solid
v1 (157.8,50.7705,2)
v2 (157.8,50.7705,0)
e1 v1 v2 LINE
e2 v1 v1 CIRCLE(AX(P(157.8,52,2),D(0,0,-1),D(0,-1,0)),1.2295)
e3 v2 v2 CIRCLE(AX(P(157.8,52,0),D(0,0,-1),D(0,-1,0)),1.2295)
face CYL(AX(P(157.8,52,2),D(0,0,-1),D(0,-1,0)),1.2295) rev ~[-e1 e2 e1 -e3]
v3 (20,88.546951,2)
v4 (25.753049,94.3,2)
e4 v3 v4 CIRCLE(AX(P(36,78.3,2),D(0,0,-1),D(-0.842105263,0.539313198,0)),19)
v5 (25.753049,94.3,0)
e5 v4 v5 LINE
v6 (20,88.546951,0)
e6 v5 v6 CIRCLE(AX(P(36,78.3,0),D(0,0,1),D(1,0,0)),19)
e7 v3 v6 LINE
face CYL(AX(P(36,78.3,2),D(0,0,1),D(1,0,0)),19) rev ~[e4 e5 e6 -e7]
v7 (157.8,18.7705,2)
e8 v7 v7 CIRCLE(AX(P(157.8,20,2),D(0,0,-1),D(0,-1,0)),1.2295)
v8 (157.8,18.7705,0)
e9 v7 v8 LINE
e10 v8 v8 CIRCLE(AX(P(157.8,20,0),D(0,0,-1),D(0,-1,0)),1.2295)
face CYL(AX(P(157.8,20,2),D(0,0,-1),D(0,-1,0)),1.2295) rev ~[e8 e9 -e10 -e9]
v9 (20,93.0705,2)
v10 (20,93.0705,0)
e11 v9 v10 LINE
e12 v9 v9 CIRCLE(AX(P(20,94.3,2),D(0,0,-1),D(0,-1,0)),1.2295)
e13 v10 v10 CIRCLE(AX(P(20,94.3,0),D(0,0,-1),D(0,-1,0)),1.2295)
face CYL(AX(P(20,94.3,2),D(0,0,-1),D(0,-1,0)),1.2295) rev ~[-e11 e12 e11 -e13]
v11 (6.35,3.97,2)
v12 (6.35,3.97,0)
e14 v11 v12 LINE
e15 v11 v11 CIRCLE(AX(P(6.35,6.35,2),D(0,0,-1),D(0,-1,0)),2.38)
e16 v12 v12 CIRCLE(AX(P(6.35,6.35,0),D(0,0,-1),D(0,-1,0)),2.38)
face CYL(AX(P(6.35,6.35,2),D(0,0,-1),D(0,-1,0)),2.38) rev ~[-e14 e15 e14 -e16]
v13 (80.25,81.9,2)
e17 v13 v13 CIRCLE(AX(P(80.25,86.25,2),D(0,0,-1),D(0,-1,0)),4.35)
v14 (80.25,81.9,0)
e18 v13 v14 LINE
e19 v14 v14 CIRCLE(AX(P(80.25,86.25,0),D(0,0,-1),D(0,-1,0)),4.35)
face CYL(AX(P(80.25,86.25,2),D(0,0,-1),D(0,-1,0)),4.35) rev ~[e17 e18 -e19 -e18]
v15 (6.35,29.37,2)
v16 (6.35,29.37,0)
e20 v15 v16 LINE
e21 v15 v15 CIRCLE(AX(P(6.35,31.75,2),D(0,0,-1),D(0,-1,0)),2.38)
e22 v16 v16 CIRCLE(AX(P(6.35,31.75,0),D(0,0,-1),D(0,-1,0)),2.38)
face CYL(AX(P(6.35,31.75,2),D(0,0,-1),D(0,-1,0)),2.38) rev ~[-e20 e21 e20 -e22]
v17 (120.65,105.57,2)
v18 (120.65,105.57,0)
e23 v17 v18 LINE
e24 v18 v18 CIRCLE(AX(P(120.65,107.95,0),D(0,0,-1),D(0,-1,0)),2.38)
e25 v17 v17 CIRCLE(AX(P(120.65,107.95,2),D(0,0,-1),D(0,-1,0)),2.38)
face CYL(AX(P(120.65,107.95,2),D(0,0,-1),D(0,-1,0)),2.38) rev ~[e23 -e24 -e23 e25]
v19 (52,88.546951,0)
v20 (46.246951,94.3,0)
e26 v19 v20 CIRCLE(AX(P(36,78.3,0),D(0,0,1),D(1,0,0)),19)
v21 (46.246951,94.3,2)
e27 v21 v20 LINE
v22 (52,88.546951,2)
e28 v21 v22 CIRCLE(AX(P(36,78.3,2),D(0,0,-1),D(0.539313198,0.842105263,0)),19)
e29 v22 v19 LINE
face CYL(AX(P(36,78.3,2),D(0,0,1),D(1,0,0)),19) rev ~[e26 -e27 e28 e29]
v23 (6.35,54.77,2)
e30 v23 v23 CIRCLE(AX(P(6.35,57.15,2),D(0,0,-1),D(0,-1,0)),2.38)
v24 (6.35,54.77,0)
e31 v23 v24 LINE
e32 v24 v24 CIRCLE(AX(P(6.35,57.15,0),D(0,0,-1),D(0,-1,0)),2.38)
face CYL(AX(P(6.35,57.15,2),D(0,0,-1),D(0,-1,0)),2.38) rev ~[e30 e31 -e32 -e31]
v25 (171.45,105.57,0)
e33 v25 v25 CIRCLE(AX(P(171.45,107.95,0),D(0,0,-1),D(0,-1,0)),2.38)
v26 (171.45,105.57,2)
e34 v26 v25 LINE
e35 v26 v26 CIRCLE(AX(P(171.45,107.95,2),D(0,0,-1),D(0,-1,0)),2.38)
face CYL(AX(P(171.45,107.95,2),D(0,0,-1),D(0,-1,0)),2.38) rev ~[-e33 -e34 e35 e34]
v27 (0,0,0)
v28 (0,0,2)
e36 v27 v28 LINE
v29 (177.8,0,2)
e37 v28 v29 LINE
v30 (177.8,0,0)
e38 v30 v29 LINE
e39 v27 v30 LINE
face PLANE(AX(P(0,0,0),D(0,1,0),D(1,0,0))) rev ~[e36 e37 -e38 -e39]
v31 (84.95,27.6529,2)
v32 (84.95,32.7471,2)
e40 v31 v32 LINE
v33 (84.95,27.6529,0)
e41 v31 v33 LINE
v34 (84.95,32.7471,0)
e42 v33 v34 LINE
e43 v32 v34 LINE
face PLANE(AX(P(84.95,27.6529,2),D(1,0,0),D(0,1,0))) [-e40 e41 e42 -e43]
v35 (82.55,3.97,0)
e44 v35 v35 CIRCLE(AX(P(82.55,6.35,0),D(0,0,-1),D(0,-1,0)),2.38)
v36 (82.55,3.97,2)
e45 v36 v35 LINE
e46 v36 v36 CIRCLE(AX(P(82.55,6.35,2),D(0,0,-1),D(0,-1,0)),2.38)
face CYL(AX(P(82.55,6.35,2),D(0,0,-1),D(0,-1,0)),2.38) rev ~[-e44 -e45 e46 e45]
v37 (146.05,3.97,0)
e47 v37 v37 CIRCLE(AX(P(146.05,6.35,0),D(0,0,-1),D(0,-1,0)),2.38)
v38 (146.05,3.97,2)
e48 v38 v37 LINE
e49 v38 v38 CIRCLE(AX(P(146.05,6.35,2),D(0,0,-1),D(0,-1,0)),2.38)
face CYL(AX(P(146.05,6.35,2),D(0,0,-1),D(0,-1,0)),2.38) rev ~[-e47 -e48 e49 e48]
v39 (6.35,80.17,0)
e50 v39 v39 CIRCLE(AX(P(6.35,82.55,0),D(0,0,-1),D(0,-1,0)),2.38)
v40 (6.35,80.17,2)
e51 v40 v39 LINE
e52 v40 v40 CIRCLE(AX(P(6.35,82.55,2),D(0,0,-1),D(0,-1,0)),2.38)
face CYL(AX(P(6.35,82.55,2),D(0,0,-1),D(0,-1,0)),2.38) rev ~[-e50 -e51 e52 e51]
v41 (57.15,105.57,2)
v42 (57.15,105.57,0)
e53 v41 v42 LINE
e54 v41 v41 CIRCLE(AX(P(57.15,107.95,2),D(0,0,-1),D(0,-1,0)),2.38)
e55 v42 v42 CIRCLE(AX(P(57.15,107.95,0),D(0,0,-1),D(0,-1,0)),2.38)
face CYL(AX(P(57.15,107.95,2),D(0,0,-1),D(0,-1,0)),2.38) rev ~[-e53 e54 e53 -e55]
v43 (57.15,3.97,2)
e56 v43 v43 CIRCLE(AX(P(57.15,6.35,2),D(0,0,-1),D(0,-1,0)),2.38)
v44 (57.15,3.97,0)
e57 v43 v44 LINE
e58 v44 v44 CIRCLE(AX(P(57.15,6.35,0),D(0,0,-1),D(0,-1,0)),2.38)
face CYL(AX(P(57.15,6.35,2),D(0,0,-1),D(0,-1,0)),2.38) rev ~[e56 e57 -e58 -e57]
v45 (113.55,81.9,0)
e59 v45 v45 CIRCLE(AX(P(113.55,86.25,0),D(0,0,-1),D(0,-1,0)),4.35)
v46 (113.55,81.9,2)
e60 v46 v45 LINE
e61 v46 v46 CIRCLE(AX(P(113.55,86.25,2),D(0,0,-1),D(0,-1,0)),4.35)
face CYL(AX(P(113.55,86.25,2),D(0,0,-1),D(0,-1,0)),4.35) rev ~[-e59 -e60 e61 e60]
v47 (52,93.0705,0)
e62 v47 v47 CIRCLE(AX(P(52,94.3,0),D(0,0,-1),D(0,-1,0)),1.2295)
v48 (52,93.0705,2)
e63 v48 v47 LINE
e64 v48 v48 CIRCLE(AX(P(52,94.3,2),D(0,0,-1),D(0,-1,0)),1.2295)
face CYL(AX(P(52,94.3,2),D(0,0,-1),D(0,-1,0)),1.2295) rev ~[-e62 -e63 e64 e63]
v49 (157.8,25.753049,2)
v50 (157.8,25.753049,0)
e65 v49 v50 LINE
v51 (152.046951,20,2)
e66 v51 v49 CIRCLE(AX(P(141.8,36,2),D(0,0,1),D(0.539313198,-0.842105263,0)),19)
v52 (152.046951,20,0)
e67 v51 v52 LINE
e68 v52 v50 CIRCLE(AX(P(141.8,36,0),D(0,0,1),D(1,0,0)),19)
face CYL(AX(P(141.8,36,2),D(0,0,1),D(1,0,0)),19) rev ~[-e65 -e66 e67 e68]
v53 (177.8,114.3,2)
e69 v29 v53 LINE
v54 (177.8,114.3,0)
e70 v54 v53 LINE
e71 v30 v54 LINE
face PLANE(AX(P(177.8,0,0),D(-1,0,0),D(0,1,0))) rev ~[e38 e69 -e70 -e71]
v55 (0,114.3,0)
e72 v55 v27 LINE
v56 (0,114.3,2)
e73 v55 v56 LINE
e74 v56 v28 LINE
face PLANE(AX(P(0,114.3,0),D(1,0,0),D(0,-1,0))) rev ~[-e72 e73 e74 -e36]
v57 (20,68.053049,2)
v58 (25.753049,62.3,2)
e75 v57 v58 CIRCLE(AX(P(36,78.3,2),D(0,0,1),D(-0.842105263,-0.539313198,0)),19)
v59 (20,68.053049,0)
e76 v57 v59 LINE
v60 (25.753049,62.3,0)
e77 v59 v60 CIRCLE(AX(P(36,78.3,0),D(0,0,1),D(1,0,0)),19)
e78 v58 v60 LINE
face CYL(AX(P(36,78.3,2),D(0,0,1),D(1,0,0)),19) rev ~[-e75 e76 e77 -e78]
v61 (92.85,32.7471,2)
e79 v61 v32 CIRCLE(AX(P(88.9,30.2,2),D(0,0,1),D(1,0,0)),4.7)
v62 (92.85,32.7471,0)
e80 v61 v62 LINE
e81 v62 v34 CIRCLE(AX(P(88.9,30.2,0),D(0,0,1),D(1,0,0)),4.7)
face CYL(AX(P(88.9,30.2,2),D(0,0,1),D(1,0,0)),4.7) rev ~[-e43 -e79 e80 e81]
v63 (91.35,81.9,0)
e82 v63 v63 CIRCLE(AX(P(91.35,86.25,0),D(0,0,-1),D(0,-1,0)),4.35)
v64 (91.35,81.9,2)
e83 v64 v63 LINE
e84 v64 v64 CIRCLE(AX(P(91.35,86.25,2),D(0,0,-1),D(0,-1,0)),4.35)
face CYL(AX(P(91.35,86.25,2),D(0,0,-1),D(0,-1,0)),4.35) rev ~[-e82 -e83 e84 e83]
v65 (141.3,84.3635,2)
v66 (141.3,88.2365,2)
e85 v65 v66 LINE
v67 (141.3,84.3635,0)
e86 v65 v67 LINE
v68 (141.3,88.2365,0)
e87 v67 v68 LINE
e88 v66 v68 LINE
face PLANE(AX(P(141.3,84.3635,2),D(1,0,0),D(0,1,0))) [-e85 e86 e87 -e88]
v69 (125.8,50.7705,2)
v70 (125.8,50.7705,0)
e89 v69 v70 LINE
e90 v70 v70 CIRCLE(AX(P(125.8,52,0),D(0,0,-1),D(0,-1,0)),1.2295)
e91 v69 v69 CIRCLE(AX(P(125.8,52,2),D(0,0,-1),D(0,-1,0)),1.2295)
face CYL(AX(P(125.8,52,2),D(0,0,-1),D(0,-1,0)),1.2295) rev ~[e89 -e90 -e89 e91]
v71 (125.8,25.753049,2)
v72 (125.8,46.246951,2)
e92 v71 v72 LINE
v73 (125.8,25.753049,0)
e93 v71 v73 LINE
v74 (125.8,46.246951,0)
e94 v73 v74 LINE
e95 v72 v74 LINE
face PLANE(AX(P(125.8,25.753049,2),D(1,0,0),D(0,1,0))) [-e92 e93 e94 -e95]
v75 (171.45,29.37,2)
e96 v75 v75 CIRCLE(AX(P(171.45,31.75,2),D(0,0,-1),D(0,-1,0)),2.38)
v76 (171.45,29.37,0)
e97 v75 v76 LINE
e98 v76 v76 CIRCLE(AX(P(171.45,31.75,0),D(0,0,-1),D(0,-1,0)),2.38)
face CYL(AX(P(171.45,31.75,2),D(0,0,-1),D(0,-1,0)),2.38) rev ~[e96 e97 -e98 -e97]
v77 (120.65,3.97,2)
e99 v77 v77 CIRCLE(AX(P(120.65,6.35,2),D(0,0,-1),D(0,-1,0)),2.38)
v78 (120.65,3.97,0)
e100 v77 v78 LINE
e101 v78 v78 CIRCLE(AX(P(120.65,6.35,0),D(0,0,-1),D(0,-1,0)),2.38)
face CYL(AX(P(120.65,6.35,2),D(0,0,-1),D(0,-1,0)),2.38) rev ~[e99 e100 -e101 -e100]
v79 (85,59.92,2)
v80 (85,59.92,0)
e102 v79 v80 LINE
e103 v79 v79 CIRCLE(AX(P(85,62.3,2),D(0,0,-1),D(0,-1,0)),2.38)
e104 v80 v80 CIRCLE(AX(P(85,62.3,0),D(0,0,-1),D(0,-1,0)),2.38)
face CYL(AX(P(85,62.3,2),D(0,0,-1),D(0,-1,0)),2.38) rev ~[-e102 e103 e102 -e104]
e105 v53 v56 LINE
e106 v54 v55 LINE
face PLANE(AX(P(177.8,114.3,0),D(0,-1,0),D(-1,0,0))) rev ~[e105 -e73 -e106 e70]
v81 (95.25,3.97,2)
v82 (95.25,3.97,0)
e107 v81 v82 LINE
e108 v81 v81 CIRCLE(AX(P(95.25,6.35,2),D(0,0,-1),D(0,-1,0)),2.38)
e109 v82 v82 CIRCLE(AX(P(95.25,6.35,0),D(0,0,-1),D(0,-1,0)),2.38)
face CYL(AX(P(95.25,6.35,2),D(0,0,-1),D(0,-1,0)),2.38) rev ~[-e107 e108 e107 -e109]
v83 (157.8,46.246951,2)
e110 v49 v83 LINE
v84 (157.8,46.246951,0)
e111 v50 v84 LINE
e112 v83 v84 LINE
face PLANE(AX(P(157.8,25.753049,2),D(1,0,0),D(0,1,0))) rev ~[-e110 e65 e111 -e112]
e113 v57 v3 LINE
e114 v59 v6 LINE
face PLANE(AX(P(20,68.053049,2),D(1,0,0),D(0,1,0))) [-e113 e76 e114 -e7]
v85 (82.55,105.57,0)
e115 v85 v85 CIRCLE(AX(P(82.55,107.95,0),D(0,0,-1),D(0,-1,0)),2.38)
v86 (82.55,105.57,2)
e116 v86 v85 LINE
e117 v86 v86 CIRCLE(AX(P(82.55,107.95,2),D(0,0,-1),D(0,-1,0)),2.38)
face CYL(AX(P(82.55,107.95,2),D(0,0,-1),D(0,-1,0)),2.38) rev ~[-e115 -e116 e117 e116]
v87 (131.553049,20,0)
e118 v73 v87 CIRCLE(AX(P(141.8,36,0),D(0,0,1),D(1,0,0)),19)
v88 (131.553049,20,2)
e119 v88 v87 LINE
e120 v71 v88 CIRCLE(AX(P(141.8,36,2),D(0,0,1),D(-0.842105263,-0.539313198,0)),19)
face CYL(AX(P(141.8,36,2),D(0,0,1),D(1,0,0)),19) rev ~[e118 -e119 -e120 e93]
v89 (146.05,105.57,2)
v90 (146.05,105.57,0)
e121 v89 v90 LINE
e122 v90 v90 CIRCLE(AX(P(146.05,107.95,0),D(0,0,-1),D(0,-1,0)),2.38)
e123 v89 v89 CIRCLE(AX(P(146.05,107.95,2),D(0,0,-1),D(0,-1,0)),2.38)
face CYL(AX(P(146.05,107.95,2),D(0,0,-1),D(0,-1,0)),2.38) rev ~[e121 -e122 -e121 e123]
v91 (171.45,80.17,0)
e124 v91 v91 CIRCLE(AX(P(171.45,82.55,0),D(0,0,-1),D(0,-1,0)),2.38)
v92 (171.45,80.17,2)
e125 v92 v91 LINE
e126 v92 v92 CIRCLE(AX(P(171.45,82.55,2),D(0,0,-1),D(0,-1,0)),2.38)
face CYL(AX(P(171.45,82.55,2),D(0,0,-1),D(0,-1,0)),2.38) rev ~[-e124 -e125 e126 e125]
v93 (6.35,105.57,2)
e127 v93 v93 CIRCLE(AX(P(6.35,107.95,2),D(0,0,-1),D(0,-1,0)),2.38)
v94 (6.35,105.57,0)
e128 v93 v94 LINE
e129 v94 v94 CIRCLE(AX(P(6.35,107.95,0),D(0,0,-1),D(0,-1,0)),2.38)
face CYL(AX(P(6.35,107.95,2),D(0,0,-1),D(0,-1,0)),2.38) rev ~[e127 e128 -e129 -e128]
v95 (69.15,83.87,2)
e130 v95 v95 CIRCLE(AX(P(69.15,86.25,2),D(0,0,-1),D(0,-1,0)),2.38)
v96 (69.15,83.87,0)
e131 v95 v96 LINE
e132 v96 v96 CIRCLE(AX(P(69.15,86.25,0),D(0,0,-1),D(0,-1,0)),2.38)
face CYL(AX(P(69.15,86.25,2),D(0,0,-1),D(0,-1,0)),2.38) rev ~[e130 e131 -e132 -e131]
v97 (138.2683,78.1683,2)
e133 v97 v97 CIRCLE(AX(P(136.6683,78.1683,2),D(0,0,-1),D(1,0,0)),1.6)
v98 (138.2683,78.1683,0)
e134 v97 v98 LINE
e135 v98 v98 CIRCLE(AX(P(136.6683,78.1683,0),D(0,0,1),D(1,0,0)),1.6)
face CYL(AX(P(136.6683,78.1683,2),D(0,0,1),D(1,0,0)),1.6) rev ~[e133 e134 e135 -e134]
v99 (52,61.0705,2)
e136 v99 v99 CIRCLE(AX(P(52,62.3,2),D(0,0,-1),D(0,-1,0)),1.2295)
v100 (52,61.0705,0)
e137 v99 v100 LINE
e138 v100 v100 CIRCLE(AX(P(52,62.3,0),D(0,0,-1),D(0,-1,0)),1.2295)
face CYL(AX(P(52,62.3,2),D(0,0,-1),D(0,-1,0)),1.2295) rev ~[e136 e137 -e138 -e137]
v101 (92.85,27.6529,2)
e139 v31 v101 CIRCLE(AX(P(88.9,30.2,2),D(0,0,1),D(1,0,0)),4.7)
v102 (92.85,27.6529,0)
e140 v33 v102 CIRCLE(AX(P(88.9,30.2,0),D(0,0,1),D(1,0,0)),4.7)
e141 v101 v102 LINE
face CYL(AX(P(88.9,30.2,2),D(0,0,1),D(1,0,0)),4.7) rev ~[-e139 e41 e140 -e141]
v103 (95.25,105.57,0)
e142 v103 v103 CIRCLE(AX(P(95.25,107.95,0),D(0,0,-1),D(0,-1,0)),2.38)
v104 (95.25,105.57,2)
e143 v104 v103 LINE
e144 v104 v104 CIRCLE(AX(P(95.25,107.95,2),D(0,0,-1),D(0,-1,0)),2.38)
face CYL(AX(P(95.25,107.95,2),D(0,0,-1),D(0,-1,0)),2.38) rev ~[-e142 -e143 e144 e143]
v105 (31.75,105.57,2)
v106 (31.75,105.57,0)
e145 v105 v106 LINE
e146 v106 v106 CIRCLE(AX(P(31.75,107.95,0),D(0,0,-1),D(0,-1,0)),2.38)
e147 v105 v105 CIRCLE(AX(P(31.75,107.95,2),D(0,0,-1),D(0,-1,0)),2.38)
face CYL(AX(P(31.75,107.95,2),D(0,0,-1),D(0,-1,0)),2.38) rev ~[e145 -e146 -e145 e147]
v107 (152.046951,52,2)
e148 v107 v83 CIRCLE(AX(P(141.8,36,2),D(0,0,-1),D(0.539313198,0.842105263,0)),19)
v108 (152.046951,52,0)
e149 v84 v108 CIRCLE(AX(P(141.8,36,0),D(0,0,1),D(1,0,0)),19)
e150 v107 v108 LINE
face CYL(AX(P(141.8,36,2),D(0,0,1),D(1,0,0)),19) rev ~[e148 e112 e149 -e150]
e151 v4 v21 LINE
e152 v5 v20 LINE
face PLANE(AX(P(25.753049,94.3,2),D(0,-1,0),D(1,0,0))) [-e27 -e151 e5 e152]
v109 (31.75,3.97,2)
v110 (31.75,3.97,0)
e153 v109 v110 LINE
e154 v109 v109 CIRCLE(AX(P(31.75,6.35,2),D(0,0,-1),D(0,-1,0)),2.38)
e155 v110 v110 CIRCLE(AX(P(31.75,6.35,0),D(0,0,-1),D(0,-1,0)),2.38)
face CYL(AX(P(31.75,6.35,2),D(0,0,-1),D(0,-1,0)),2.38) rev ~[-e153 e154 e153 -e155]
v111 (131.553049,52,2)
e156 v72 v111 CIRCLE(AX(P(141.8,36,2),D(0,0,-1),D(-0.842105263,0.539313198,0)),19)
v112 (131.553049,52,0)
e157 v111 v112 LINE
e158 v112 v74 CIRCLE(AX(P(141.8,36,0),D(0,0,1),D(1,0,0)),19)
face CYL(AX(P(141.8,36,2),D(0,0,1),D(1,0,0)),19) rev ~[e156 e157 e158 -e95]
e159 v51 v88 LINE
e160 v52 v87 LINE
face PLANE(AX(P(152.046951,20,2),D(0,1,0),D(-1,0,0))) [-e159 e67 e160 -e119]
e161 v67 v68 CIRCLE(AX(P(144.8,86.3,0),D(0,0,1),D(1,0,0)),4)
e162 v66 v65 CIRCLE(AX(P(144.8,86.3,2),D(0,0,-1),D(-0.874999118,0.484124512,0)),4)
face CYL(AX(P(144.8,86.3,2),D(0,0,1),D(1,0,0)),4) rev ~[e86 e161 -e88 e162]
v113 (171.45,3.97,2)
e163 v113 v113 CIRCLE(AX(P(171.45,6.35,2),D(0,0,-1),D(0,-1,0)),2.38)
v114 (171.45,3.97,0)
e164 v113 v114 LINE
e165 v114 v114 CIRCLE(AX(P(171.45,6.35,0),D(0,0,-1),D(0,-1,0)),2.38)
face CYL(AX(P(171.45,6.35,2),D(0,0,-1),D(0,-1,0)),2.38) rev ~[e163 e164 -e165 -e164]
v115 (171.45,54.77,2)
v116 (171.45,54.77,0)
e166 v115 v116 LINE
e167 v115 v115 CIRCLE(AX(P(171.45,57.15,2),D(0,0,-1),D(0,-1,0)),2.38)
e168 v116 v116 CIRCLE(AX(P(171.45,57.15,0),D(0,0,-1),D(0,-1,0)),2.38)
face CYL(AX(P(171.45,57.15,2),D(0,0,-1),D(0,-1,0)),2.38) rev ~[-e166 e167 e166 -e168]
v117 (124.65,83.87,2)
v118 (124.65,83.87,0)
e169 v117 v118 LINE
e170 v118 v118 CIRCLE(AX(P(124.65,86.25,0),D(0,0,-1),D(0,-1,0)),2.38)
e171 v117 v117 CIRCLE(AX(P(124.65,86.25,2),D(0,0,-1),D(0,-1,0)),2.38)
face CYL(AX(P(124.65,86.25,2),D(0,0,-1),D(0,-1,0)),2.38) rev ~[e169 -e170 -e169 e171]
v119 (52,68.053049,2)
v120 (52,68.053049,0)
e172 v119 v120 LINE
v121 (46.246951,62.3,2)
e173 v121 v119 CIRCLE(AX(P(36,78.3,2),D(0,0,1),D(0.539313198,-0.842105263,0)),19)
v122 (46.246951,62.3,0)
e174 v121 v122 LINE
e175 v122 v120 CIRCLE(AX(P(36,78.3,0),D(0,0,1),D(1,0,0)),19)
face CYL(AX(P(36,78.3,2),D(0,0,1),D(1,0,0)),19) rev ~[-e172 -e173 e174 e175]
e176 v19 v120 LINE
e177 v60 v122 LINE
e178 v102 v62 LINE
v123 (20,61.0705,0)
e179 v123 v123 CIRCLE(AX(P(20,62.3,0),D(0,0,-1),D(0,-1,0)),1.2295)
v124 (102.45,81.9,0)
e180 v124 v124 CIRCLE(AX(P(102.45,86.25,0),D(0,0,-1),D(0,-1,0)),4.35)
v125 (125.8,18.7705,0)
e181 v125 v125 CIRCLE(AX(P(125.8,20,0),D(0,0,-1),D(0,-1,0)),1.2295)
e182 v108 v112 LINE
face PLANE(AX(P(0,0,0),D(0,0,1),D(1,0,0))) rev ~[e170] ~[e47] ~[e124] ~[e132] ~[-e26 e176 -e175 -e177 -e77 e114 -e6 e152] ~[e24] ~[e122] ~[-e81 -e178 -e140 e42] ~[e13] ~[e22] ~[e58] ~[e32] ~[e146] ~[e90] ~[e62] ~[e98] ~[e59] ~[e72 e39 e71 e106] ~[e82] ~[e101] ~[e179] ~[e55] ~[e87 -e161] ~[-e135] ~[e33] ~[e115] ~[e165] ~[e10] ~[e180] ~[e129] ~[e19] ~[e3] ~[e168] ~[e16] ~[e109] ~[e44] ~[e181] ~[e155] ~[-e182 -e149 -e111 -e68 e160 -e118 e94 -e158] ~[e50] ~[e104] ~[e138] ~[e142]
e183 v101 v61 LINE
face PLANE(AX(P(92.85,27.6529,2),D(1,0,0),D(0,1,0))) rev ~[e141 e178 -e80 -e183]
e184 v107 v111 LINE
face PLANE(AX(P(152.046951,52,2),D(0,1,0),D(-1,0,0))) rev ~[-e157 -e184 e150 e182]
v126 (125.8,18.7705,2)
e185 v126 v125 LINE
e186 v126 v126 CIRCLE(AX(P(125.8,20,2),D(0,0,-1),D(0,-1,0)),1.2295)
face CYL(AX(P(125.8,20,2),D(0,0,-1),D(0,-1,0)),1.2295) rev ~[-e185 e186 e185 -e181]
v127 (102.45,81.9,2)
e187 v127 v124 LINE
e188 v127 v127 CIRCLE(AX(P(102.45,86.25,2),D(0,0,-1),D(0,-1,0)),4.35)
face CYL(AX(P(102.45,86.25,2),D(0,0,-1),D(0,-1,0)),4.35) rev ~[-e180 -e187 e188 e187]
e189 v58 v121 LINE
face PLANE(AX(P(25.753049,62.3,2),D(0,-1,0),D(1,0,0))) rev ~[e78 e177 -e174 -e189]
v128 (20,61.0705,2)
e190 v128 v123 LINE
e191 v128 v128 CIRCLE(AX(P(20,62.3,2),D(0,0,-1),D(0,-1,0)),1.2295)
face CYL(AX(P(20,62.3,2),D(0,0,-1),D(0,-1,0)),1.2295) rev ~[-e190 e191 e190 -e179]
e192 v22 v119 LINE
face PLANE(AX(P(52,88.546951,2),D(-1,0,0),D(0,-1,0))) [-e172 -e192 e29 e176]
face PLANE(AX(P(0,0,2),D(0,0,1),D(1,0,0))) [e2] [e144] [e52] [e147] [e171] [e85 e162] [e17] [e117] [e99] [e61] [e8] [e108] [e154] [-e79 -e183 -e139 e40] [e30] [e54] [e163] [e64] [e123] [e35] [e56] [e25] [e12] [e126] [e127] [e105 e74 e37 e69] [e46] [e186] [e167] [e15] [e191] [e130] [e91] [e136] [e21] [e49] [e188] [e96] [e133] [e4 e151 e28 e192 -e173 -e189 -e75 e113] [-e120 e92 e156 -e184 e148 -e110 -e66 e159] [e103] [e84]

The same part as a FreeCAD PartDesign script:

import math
import FreeCAD as App
import Part
import Sketcher

doc = App.newDocument("Part")
params = doc.addObject("Spreadsheet::Sheet", "Params")
for row, (alias, value) in enumerate([
    ("sketch1_width", "177.8 mm"),
    ("sketch1_height", "114.3 mm"),
    ("pad1_length", "2 mm"),
    ("sketch2_diameter", "4.76 mm"),
    ("hole_diameter", "4.76 mm"),
    ("sketch3_diameter", "8.7 mm"),
    ("hole2_diameter", "8.7 mm"),
    ("sketch4_diameter", "4.76 mm"),
    ("hole3_diameter", "4.76 mm"),
    ("sketch5_radius", "4.7 mm"),
    ("sketch6_radius", "4 mm"),
    ("sketch6_diameter", "3.2 mm"),
    ("hole4_diameter", "2.459 mm"),
    ("hole5_diameter", "2.459 mm"),
    ("sketch9_diameter", "4.76 mm"),
    ("hole6_diameter", "4.76 mm"),
    ("sketch10_radius", "19 mm"),
    ("pocket3_length", "10 mm"),
], start=1):
    params.set(f"A{row}", alias)
    params.set(f"B{row}", "=" + value)
    params.setAlias(f"B{row}", alias)

body = doc.addObject("PartDesign::Body", "Body")

sketch1 = body.newObject("Sketcher::SketchObject", "Sketch")
sketch1.AttachmentSupport = (doc.getObject("XY_Plane"), [""])
sketch1.MapMode = "FlatFace"
sketch1.addGeometry([
    Part.LineSegment(App.Vector(0, 114.3, 0), App.Vector(0, 0, 0)),
    Part.LineSegment(App.Vector(0, 0, 0), App.Vector(177.8, 0, 0)),
    Part.LineSegment(App.Vector(177.8, 0, 0), App.Vector(177.8, 114.3, 0)),
    Part.LineSegment(App.Vector(177.8, 114.3, 0), App.Vector(0, 114.3, 0)),
], False)
sketch1.addConstraint([
    Sketcher.Constraint("Coincident", 0, 2, 1, 1),
    Sketcher.Constraint("Coincident", 1, 2, 2, 1),
    Sketcher.Constraint("Coincident", 2, 2, 3, 1),
    Sketcher.Constraint("Coincident", 3, 2, 0, 1),
    Sketcher.Constraint("Vertical", 0),
    Sketcher.Constraint("Horizontal", 1),
    Sketcher.Constraint("Vertical", 2),
    Sketcher.Constraint("Horizontal", 3),
    Sketcher.Constraint("Coincident", 0, 2, -1, 1),
    Sketcher.Constraint("DistanceX", 1, 1, 1, 2, 177.8),
    Sketcher.Constraint("DistanceY", 0, 2, 0, 1, 114.3),
])
sketch1.setExpression("Constraints[9]", "Params.sketch1_width")
sketch1.setExpression("Constraints[10]", "Params.sketch1_height")
pad1 = body.newObject("PartDesign::Pad", "Pad")
pad1.Profile = sketch1
pad1.setExpression("Length", "Params.pad1_length")

sketch2 = body.newObject("Sketcher::SketchObject", "Sketch001")
sketch2.AttachmentSupport = (doc.getObject("XY_Plane"), [""])
sketch2.MapMode = "FlatFace"
sketch2.AttachmentOffset = App.Placement(App.Vector(0, 0, 2), App.Rotation())
sketch2.addGeometry([
    Part.Circle(App.Vector(6.35, 107.95, 0), App.Vector(0, 0, 1), 2.38),
    Part.Circle(App.Vector(6.35, 82.55, 0), App.Vector(0, 0, 1), 2.38),
    Part.Circle(App.Vector(6.35, 57.15, 0), App.Vector(0, 0, 1), 2.38),
    Part.Circle(App.Vector(6.35, 31.75, 0), App.Vector(0, 0, 1), 2.38),
    Part.Circle(App.Vector(6.35, 6.35, 0), App.Vector(0, 0, 1), 2.38),
    Part.Circle(App.Vector(31.75, 6.35, 0), App.Vector(0, 0, 1), 2.38),
    Part.Circle(App.Vector(57.15, 6.35, 0), App.Vector(0, 0, 1), 2.38),
    Part.Circle(App.Vector(82.55, 6.35, 0), App.Vector(0, 0, 1), 2.38),
    Part.Circle(App.Vector(95.25, 6.35, 0), App.Vector(0, 0, 1), 2.38),
    Part.Circle(App.Vector(146.05, 6.35, 0), App.Vector(0, 0, 1), 2.38),
    Part.Circle(App.Vector(120.65, 6.35, 0), App.Vector(0, 0, 1), 2.38),
    Part.Circle(App.Vector(171.45, 6.35, 0), App.Vector(0, 0, 1), 2.38),
    Part.Circle(App.Vector(171.45, 31.75, 0), App.Vector(0, 0, 1), 2.38),
    Part.Circle(App.Vector(171.45, 57.15, 0), App.Vector(0, 0, 1), 2.38),
    Part.Circle(App.Vector(171.45, 82.55, 0), App.Vector(0, 0, 1), 2.38),
    Part.Circle(App.Vector(171.45, 107.95, 0), App.Vector(0, 0, 1), 2.38),
    Part.Circle(App.Vector(120.65, 107.95, 0), App.Vector(0, 0, 1), 2.38),
    Part.Circle(App.Vector(146.05, 107.95, 0), App.Vector(0, 0, 1), 2.38),
    Part.Circle(App.Vector(95.25, 107.95, 0), App.Vector(0, 0, 1), 2.38),
    Part.Circle(App.Vector(82.55, 107.95, 0), App.Vector(0, 0, 1), 2.38),
    Part.Circle(App.Vector(57.15, 107.95, 0), App.Vector(0, 0, 1), 2.38),
    Part.Circle(App.Vector(31.75, 107.95, 0), App.Vector(0, 0, 1), 2.38),
], False)
sketch2.addConstraint([
    Sketcher.Constraint("Equal", 0, 1),
    Sketcher.Constraint("Equal", 1, 2),
    Sketcher.Constraint("Equal", 2, 3),
    Sketcher.Constraint("Equal", 3, 4),
    Sketcher.Constraint("Equal", 4, 5),
    Sketcher.Constraint("Equal", 5, 6),
    Sketcher.Constraint("Equal", 6, 7),
    Sketcher.Constraint("Equal", 7, 8),
    Sketcher.Constraint("Equal", 8, 9),
    Sketcher.Constraint("Equal", 9, 10),
    Sketcher.Constraint("Equal", 10, 11),
    Sketcher.Constraint("Equal", 11, 12),
    Sketcher.Constraint("Equal", 12, 13),
    Sketcher.Constraint("Equal", 13, 14),
    Sketcher.Constraint("Equal", 14, 15),
    Sketcher.Constraint("Equal", 15, 16),
    Sketcher.Constraint("Equal", 16, 17),
    Sketcher.Constraint("Equal", 17, 18),
    Sketcher.Constraint("Equal", 18, 19),
    Sketcher.Constraint("Equal", 19, 20),
    Sketcher.Constraint("Equal", 20, 21),
    Sketcher.Constraint("Horizontal", 4, 3, 5, 3),
    Sketcher.Constraint("Horizontal", 5, 3, 6, 3),
    Sketcher.Constraint("Horizontal", 6, 3, 7, 3),
    Sketcher.Constraint("Horizontal", 7, 3, 8, 3),
    Sketcher.Constraint("Horizontal", 8, 3, 9, 3),
    Sketcher.Constraint("Horizontal", 9, 3, 10, 3),
    Sketcher.Constraint("Horizontal", 10, 3, 11, 3),
    Sketcher.Constraint("Horizontal", 3, 3, 12, 3),
    Sketcher.Constraint("Horizontal", 2, 3, 13, 3),
    Sketcher.Constraint("Horizontal", 1, 3, 14, 3),
    Sketcher.Constraint("Horizontal", 0, 3, 15, 3),
    Sketcher.Constraint("Horizontal", 15, 3, 16, 3),
    Sketcher.Constraint("Horizontal", 16, 3, 17, 3),
    Sketcher.Constraint("Horizontal", 17, 3, 18, 3),
    Sketcher.Constraint("Horizontal", 18, 3, 19, 3),
    Sketcher.Constraint("Horizontal", 19, 3, 20, 3),
    Sketcher.Constraint("Horizontal", 20, 3, 21, 3),
    Sketcher.Constraint("Vertical", 0, 3, 1, 3),
    Sketcher.Constraint("Vertical", 1, 3, 2, 3),
    Sketcher.Constraint("Vertical", 2, 3, 3, 3),
    Sketcher.Constraint("Vertical", 3, 3, 4, 3),
    Sketcher.Constraint("Vertical", 11, 3, 12, 3),
    Sketcher.Constraint("Vertical", 12, 3, 13, 3),
    Sketcher.Constraint("Vertical", 13, 3, 14, 3),
    Sketcher.Constraint("Vertical", 14, 3, 15, 3),
    Sketcher.Constraint("Vertical", 10, 3, 16, 3),
    Sketcher.Constraint("Vertical", 9, 3, 17, 3),
    Sketcher.Constraint("Vertical", 8, 3, 18, 3),
    Sketcher.Constraint("Vertical", 7, 3, 19, 3),
    Sketcher.Constraint("Vertical", 6, 3, 20, 3),
    Sketcher.Constraint("Vertical", 5, 3, 21, 3),
    Sketcher.Constraint("Diameter", 0, 4.76),
    Sketcher.Constraint("DistanceY", 1, 3, 0, 3, 25.4),
    Sketcher.Constraint("DistanceY", 2, 3, 1, 3, 25.4),
    Sketcher.Constraint("DistanceY", 3, 3, 2, 3, 25.4),
    Sketcher.Constraint("DistanceY", 4, 3, 3, 3, 25.4),
    Sketcher.Constraint("DistanceX", 4, 3, 5, 3, 25.4),
    Sketcher.Constraint("DistanceX", 5, 3, 6, 3, 25.4),
    Sketcher.Constraint("DistanceX", 6, 3, 7, 3, 25.4),
    Sketcher.Constraint("DistanceX", 7, 3, 8, 3, 12.7),
    Sketcher.Constraint("DistanceX", 8, 3, 9, 3, 50.8),
    Sketcher.Constraint("DistanceX", 8, 3, 10, 3, 25.4),
    Sketcher.Constraint("DistanceX", 9, 3, 11, 3, 25.4),
    Sketcher.Constraint("DistanceX", -1, 1, 0, 3, 6.35),
    Sketcher.Constraint("DistanceY", -1, 1, 0, 3, 107.95),
])
sketch2.setExpression("Constraints[52]", "Params.sketch2_diameter")
doc.recompute()
hole = body.newObject("PartDesign::Hole", "Hole")
hole.Profile = sketch2
hole.ThreadType = "None"
hole.setExpression("Diameter", "Params.hole_diameter")
hole.DepthType = "ThroughAll"

sketch3 = body.newObject("Sketcher::SketchObject", "Sketch002")
sketch3.AttachmentSupport = (doc.getObject("XY_Plane"), [""])
sketch3.MapMode = "FlatFace"
sketch3.AttachmentOffset = App.Placement(App.Vector(0, 0, 2), App.Rotation())
sketch3.addGeometry([
    Part.Circle(App.Vector(91.35, 86.25, 0), App.Vector(0, 0, 1), 4.35),
    Part.Circle(App.Vector(102.45, 86.25, 0), App.Vector(0, 0, 1), 4.35),
    Part.Circle(App.Vector(113.55, 86.25, 0), App.Vector(0, 0, 1), 4.35),
    Part.Circle(App.Vector(80.25, 86.25, 0), App.Vector(0, 0, 1), 4.35),
], False)
sketch3.addConstraint([
    Sketcher.Constraint("Equal", 0, 1),
    Sketcher.Constraint("Equal", 1, 2),
    Sketcher.Constraint("Equal", 2, 3),
    Sketcher.Constraint("Horizontal", 0, 3, 1, 3),
    Sketcher.Constraint("Horizontal", 1, 3, 2, 3),
    Sketcher.Constraint("Horizontal", 2, 3, 3, 3),
    Sketcher.Constraint("Diameter", 0, 8.7),
    Sketcher.Constraint("DistanceX", 0, 3, 1, 3, 11.1),
    Sketcher.Constraint("DistanceX", 1, 3, 2, 3, 11.1),
    Sketcher.Constraint("DistanceX", 3, 3, 0, 3, 11.1),
    Sketcher.Constraint("DistanceX", -1, 1, 0, 3, 91.35),
    Sketcher.Constraint("DistanceY", -1, 1, 0, 3, 86.25),
])
sketch3.setExpression("Constraints[6]", "Params.sketch3_diameter")
doc.recompute()
hole2 = body.newObject("PartDesign::Hole", "Hole001")
hole2.Profile = sketch3
hole2.ThreadType = "None"
hole2.setExpression("Diameter", "Params.hole2_diameter")
hole2.DepthType = "ThroughAll"

sketch4 = body.newObject("Sketcher::SketchObject", "Sketch003")
sketch4.AttachmentSupport = (doc.getObject("XY_Plane"), [""])
sketch4.MapMode = "FlatFace"
sketch4.AttachmentOffset = App.Placement(App.Vector(0, 0, 2), App.Rotation())
sketch4.addGeometry([
    Part.Circle(App.Vector(124.65, 86.25, 0), App.Vector(0, 0, 1), 2.38),
    Part.Circle(App.Vector(69.15, 86.25, 0), App.Vector(0, 0, 1), 2.38),
], False)
sketch4.addConstraint([
    Sketcher.Constraint("Equal", 0, 1),
    Sketcher.Constraint("Horizontal", 0, 3, 1, 3),
    Sketcher.Constraint("Diameter", 0, 4.76),
    Sketcher.Constraint("DistanceX", 1, 3, 0, 3, 55.5),
    Sketcher.Constraint("DistanceX", -1, 1, 0, 3, 124.65),
    Sketcher.Constraint("DistanceY", -1, 1, 0, 3, 86.25),
])
sketch4.setExpression("Constraints[2]", "Params.sketch4_diameter")
doc.recompute()
hole3 = body.newObject("PartDesign::Hole", "Hole002")
hole3.Profile = sketch4
hole3.ThreadType = "None"
hole3.setExpression("Diameter", "Params.hole3_diameter")
hole3.DepthType = "ThroughAll"

sketch5 = body.newObject("Sketcher::SketchObject", "Sketch004")
sketch5.AttachmentSupport = (doc.getObject("XY_Plane"), [""])
sketch5.MapMode = "FlatFace"
sketch5.AttachmentOffset = App.Placement(App.Vector(0, 0, 2), App.Rotation())
sketch5.addGeometry([
    Part.LineSegment(App.Vector(92.85, 27.6529, 0), App.Vector(92.85, 32.7471, 0)),
    Part.ArcOfCircle(Part.Circle(App.Vector(88.9, 30.2, 0), App.Vector(0, 0, 1), 4.7), math.radians(32.815357), math.radians(147.184643)),
    Part.LineSegment(App.Vector(84.95, 32.7471, 0), App.Vector(84.95, 27.6529, 0)),
    Part.ArcOfCircle(Part.Circle(App.Vector(88.9, 30.2, 0), App.Vector(0, 0, 1), 4.7), math.radians(-147.184643), math.radians(-32.815357)),
], False)
sketch5.addConstraint([
    Sketcher.Constraint("Coincident", 0, 2, 1, 1),
    Sketcher.Constraint("Coincident", 1, 2, 2, 1),
    Sketcher.Constraint("Coincident", 2, 2, 3, 1),
    Sketcher.Constraint("Coincident", 3, 2, 0, 1),
    Sketcher.Constraint("Vertical", 0),
    Sketcher.Constraint("Vertical", 2),
    Sketcher.Constraint("Coincident", 3, 3, 1, 3),
    Sketcher.Constraint("Equal", 1, 3),
    Sketcher.Constraint("Horizontal", 0, 2, 1, 2),
    Sketcher.Constraint("Radius", 1, 4.7),
    Sketcher.Constraint("DistanceY", -1, 1, 1, 3, 30.2),
    Sketcher.Constraint("DistanceX", 1, 2, 0, 2, 7.9),
    Sketcher.Constraint("DistanceX", -1, 1, 1, 3, 88.9),
])
sketch5.setExpression("Constraints[9]", "Params.sketch5_radius")
pocket1 = body.newObject("PartDesign::Pocket", "Pocket")
pocket1.Profile = sketch5
pocket1.Type = "ThroughAll"

sketch6 = body.newObject("Sketcher::SketchObject", "Sketch005")
sketch6.AttachmentSupport = (doc.getObject("XY_Plane"), [""])
sketch6.MapMode = "FlatFace"
sketch6.AttachmentOffset = App.Placement(App.Vector(0, 0, 2), App.Rotation())
sketch6.addGeometry([
    Part.Circle(App.Vector(136.6683, 78.1683, 0), App.Vector(0, 0, 1), 1.6),
    Part.LineSegment(App.Vector(141.3, 88.2365, 0), App.Vector(141.3, 84.3635, 0)),
    Part.ArcOfCircle(Part.Circle(App.Vector(144.8, 86.3, 0), App.Vector(0, 0, 1), 4), math.radians(-151.044871), math.radians(151.044871)),
], False)
sketch6.addConstraint([
    Sketcher.Constraint("Coincident", 1, 1, 2, 2),
    Sketcher.Constraint("Coincident", 2, 1, 1, 2),
    Sketcher.Constraint("Vertical", 1),
    Sketcher.Constraint("Radius", 2, 4.0),
    Sketcher.Constraint("Diameter", 0, 3.2),
    Sketcher.Constraint("DistanceX", -1, 1, 2, 3, 144.8),
    Sketcher.Constraint("DistanceY", -1, 1, 2, 3, 86.3),
    Sketcher.Constraint("DistanceX", -1, 1, 1, 1, 141.3),
    Sketcher.Constraint("DistanceX", -1, 1, 0, 3, 136.6683),
    Sketcher.Constraint("DistanceY", -1, 1, 0, 3, 78.1683),
])
sketch6.setExpression("Constraints[3]", "Params.sketch6_radius")
sketch6.setExpression("Constraints[4]", "Params.sketch6_diameter")
pocket2 = body.newObject("PartDesign::Pocket", "Pocket001")
pocket2.Profile = sketch6
pocket2.Type = "ThroughAll"

sketch7 = body.newObject("Sketcher::SketchObject", "Sketch006")
sketch7.AttachmentSupport = (doc.getObject("XY_Plane"), [""])
sketch7.MapMode = "FlatFace"
sketch7.AttachmentOffset = App.Placement(App.Vector(0, 0, 2), App.Rotation())
sketch7.addGeometry([
    Part.Circle(App.Vector(125.8, 52, 0), App.Vector(0, 0, 1), 1.2295),
    Part.Circle(App.Vector(157.8, 52, 0), App.Vector(0, 0, 1), 1.2295),
    Part.Circle(App.Vector(157.8, 20, 0), App.Vector(0, 0, 1), 1.2295),
    Part.Circle(App.Vector(125.8, 20, 0), App.Vector(0, 0, 1), 1.2295),
], False)
sketch7.addConstraint([
    Sketcher.Constraint("Equal", 0, 1),
    Sketcher.Constraint("Equal", 1, 2),
    Sketcher.Constraint("Equal", 2, 3),
    Sketcher.Constraint("Horizontal", 0, 3, 1, 3),
    Sketcher.Constraint("Horizontal", 2, 3, 3, 3),
    Sketcher.Constraint("Vertical", 1, 3, 2, 3),
    Sketcher.Constraint("Vertical", 0, 3, 3, 3),
    Sketcher.Constraint("Diameter", 0, 2.459),
    Sketcher.Constraint("DistanceY", -1, 1, 0, 3, 52.0),
    Sketcher.Constraint("DistanceY", -1, 1, 2, 3, 20.0),
    Sketcher.Constraint("DistanceX", 0, 3, 1, 3, 32.0),
    Sketcher.Constraint("DistanceX", -1, 1, 0, 3, 125.8),
])
doc.recompute()
hole4 = body.newObject("PartDesign::Hole", "Hole003")
hole4.Profile = sketch7
hole4.ThreadType = "None"
hole4.setExpression("Diameter", "Params.hole4_diameter")
hole4.DepthType = "ThroughAll"

sketch8 = body.newObject("Sketcher::SketchObject", "Sketch007")
sketch8.AttachmentSupport = (doc.getObject("XY_Plane"), [""])
sketch8.MapMode = "FlatFace"
sketch8.AttachmentOffset = App.Placement(App.Vector(0, 0, 2), App.Rotation())
sketch8.addGeometry([
    Part.Circle(App.Vector(20, 94.3, 0), App.Vector(0, 0, 1), 1.2295),
    Part.Circle(App.Vector(52, 94.3, 0), App.Vector(0, 0, 1), 1.2295),
    Part.Circle(App.Vector(52, 62.3, 0), App.Vector(0, 0, 1), 1.2295),
    Part.Circle(App.Vector(20, 62.3, 0), App.Vector(0, 0, 1), 1.2295),
], False)
sketch8.addConstraint([
    Sketcher.Constraint("Equal", 0, 1),
    Sketcher.Constraint("Equal", 1, 2),
    Sketcher.Constraint("Equal", 2, 3),
    Sketcher.Constraint("Horizontal", 0, 3, 1, 3),
    Sketcher.Constraint("Horizontal", 2, 3, 3, 3),
    Sketcher.Constraint("Vertical", 1, 3, 2, 3),
    Sketcher.Constraint("Vertical", 0, 3, 3, 3),
    Sketcher.Constraint("Diameter", 0, 2.459),
    Sketcher.Constraint("DistanceX", -1, 1, 0, 3, 20.0),
    Sketcher.Constraint("DistanceX", -1, 1, 1, 3, 52.0),
    Sketcher.Constraint("DistanceY", 2, 3, 1, 3, 32.0),
    Sketcher.Constraint("DistanceY", -1, 1, 0, 3, 94.3),
])
doc.recompute()
hole5 = body.newObject("PartDesign::Hole", "Hole004")
hole5.Profile = sketch8
hole5.ThreadType = "None"
hole5.setExpression("Diameter", "Params.hole5_diameter")
hole5.DepthType = "ThroughAll"

sketch9 = body.newObject("Sketcher::SketchObject", "Sketch008")
sketch9.AttachmentSupport = (doc.getObject("XY_Plane"), [""])
sketch9.MapMode = "FlatFace"
sketch9.AttachmentOffset = App.Placement(App.Vector(0, 0, 2), App.Rotation())
sketch9.addGeometry(Part.Circle(App.Vector(85, 62.3, 0), App.Vector(0, 0, 1), 2.38), False)
sketch9.addConstraint([
    Sketcher.Constraint("Diameter", 0, 4.76),
    Sketcher.Constraint("DistanceX", -1, 1, 0, 3, 85.0),
    Sketcher.Constraint("DistanceY", -1, 1, 0, 3, 62.3),
])
sketch9.setExpression("Constraints[0]", "Params.sketch9_diameter")
doc.recompute()
hole6 = body.newObject("PartDesign::Hole", "Hole005")
hole6.Profile = sketch9
hole6.ThreadType = "None"
hole6.setExpression("Diameter", "Params.hole6_diameter")
hole6.DepthType = "ThroughAll"

sketch10 = body.newObject("Sketcher::SketchObject", "Sketch009")
sketch10.AttachmentSupport = (doc.getObject("XY_Plane"), [""])
sketch10.MapMode = "FlatFace"
sketch10.AttachmentOffset = App.Placement(App.Vector(0, 0, 2), App.Rotation())
sketch10.addGeometry([
    Part.LineSegment(App.Vector(46.246951, 94.3, 0), App.Vector(25.753049, 94.3, 0)),
    Part.ArcOfCircle(Part.Circle(App.Vector(36, 78.3, 0), App.Vector(0, 0, 1), 19), math.radians(122.636898), math.radians(147.363102)),
    Part.LineSegment(App.Vector(20, 88.546951, 0), App.Vector(20, 68.053049, 0)),
    Part.ArcOfCircle(Part.Circle(App.Vector(36, 78.3, 0), App.Vector(0, 0, 1), 19), math.radians(-147.363102), math.radians(-122.636898)),
    Part.LineSegment(App.Vector(25.753049, 62.3, 0), App.Vector(46.246951, 62.3, 0)),
    Part.ArcOfCircle(Part.Circle(App.Vector(36, 78.3, 0), App.Vector(0, 0, 1), 19), math.radians(-57.363102), math.radians(-32.636898)),
    Part.LineSegment(App.Vector(52, 68.053049, 0), App.Vector(52, 88.546951, 0)),
    Part.ArcOfCircle(Part.Circle(App.Vector(36, 78.3, 0), App.Vector(0, 0, 1), 19), math.radians(32.636898), math.radians(57.363102)),
    Part.LineSegment(App.Vector(152.046951, 52, 0), App.Vector(131.553049, 52, 0)),
    Part.ArcOfCircle(Part.Circle(App.Vector(141.8, 36, 0), App.Vector(0, 0, 1), 19), math.radians(122.636898), math.radians(147.363102)),
    Part.LineSegment(App.Vector(125.8, 46.246951, 0), App.Vector(125.8, 25.753049, 0)),
    Part.ArcOfCircle(Part.Circle(App.Vector(141.8, 36, 0), App.Vector(0, 0, 1), 19), math.radians(-147.363102), math.radians(-122.636898)),
    Part.LineSegment(App.Vector(131.553049, 20, 0), App.Vector(152.046951, 20, 0)),
    Part.ArcOfCircle(Part.Circle(App.Vector(141.8, 36, 0), App.Vector(0, 0, 1), 19), math.radians(-57.363102), math.radians(-32.636898)),
    Part.LineSegment(App.Vector(157.8, 25.753049, 0), App.Vector(157.8, 46.246951, 0)),
    Part.ArcOfCircle(Part.Circle(App.Vector(141.8, 36, 0), App.Vector(0, 0, 1), 19), math.radians(32.636898), math.radians(57.363102)),
], False)
sketch10.addConstraint([
    Sketcher.Constraint("Coincident", 0, 2, 1, 1),
    Sketcher.Constraint("Coincident", 1, 2, 2, 1),
    Sketcher.Constraint("Coincident", 2, 2, 3, 1),
    Sketcher.Constraint("Coincident", 3, 2, 4, 1),
    Sketcher.Constraint("Coincident", 4, 2, 5, 1),
    Sketcher.Constraint("Coincident", 5, 2, 6, 1),
    Sketcher.Constraint("Coincident", 6, 2, 7, 1),
    Sketcher.Constraint("Coincident", 7, 2, 0, 1),
    Sketcher.Constraint("Coincident", 8, 2, 9, 1),
    Sketcher.Constraint("Coincident", 9, 2, 10, 1),
    Sketcher.Constraint("Coincident", 10, 2, 11, 1),
    Sketcher.Constraint("Coincident", 11, 2, 12, 1),
    Sketcher.Constraint("Coincident", 12, 2, 13, 1),
    Sketcher.Constraint("Coincident", 13, 2, 14, 1),
    Sketcher.Constraint("Coincident", 14, 2, 15, 1),
    Sketcher.Constraint("Coincident", 15, 2, 8, 1),
    Sketcher.Constraint("Horizontal", 0),
    Sketcher.Constraint("Vertical", 2),
    Sketcher.Constraint("Horizontal", 4),
    Sketcher.Constraint("Vertical", 6),
    Sketcher.Constraint("Horizontal", 8),
    Sketcher.Constraint("Vertical", 10),
    Sketcher.Constraint("Horizontal", 12),
    Sketcher.Constraint("Vertical", 14),
    Sketcher.Constraint("Coincident", 3, 3, 1, 3),
    Sketcher.Constraint("Coincident", 5, 3, 1, 3),
    Sketcher.Constraint("Coincident", 7, 3, 1, 3),
    Sketcher.Constraint("Coincident", 11, 3, 9, 3),
    Sketcher.Constraint("Coincident", 13, 3, 9, 3),
    Sketcher.Constraint("Coincident", 15, 3, 9, 3),
    Sketcher.Constraint("Equal", 1, 3),
    Sketcher.Constraint("Equal", 3, 5),
    Sketcher.Constraint("Equal", 5, 7),
    Sketcher.Constraint("Equal", 7, 9),
    Sketcher.Constraint("Equal", 9, 11),
    Sketcher.Constraint("Equal", 11, 13),
    Sketcher.Constraint("Equal", 13, 15),
    Sketcher.Constraint("Horizontal", 2, 2, 5, 2),
    Sketcher.Constraint("Horizontal", 10, 2, 13, 2),
    Sketcher.Constraint("Vertical", 0, 2, 3, 2),
    Sketcher.Constraint("Vertical", 8, 2, 11, 2),
    Sketcher.Constraint("Equal", 4, 8),
    Sketcher.Constraint("Equal", 12, 2),
    Sketcher.Constraint("Equal", 6, 10),
    Sketcher.Constraint("Radius", 1, 19.0),
    Sketcher.Constraint("DistanceX", -1, 1, 1, 3, 36.0),
    Sketcher.Constraint("DistanceY", -1, 1, 9, 3, 36.0),
    Sketcher.Constraint("DistanceX", -1, 1, 1, 2, 20.0),
    Sketcher.Constraint("DistanceY", -1, 1, 1, 3, 78.3),
    Sketcher.Constraint("DistanceX", -1, 1, 9, 3, 141.8),
])
sketch10.setExpression("Constraints[44]", "Params.sketch10_radius")
pocket3 = body.newObject("PartDesign::Pocket", "Pocket002")
pocket3.Profile = sketch10
pocket3.setExpression("Length", "Params.pocket3_length")

doc.recompute()
